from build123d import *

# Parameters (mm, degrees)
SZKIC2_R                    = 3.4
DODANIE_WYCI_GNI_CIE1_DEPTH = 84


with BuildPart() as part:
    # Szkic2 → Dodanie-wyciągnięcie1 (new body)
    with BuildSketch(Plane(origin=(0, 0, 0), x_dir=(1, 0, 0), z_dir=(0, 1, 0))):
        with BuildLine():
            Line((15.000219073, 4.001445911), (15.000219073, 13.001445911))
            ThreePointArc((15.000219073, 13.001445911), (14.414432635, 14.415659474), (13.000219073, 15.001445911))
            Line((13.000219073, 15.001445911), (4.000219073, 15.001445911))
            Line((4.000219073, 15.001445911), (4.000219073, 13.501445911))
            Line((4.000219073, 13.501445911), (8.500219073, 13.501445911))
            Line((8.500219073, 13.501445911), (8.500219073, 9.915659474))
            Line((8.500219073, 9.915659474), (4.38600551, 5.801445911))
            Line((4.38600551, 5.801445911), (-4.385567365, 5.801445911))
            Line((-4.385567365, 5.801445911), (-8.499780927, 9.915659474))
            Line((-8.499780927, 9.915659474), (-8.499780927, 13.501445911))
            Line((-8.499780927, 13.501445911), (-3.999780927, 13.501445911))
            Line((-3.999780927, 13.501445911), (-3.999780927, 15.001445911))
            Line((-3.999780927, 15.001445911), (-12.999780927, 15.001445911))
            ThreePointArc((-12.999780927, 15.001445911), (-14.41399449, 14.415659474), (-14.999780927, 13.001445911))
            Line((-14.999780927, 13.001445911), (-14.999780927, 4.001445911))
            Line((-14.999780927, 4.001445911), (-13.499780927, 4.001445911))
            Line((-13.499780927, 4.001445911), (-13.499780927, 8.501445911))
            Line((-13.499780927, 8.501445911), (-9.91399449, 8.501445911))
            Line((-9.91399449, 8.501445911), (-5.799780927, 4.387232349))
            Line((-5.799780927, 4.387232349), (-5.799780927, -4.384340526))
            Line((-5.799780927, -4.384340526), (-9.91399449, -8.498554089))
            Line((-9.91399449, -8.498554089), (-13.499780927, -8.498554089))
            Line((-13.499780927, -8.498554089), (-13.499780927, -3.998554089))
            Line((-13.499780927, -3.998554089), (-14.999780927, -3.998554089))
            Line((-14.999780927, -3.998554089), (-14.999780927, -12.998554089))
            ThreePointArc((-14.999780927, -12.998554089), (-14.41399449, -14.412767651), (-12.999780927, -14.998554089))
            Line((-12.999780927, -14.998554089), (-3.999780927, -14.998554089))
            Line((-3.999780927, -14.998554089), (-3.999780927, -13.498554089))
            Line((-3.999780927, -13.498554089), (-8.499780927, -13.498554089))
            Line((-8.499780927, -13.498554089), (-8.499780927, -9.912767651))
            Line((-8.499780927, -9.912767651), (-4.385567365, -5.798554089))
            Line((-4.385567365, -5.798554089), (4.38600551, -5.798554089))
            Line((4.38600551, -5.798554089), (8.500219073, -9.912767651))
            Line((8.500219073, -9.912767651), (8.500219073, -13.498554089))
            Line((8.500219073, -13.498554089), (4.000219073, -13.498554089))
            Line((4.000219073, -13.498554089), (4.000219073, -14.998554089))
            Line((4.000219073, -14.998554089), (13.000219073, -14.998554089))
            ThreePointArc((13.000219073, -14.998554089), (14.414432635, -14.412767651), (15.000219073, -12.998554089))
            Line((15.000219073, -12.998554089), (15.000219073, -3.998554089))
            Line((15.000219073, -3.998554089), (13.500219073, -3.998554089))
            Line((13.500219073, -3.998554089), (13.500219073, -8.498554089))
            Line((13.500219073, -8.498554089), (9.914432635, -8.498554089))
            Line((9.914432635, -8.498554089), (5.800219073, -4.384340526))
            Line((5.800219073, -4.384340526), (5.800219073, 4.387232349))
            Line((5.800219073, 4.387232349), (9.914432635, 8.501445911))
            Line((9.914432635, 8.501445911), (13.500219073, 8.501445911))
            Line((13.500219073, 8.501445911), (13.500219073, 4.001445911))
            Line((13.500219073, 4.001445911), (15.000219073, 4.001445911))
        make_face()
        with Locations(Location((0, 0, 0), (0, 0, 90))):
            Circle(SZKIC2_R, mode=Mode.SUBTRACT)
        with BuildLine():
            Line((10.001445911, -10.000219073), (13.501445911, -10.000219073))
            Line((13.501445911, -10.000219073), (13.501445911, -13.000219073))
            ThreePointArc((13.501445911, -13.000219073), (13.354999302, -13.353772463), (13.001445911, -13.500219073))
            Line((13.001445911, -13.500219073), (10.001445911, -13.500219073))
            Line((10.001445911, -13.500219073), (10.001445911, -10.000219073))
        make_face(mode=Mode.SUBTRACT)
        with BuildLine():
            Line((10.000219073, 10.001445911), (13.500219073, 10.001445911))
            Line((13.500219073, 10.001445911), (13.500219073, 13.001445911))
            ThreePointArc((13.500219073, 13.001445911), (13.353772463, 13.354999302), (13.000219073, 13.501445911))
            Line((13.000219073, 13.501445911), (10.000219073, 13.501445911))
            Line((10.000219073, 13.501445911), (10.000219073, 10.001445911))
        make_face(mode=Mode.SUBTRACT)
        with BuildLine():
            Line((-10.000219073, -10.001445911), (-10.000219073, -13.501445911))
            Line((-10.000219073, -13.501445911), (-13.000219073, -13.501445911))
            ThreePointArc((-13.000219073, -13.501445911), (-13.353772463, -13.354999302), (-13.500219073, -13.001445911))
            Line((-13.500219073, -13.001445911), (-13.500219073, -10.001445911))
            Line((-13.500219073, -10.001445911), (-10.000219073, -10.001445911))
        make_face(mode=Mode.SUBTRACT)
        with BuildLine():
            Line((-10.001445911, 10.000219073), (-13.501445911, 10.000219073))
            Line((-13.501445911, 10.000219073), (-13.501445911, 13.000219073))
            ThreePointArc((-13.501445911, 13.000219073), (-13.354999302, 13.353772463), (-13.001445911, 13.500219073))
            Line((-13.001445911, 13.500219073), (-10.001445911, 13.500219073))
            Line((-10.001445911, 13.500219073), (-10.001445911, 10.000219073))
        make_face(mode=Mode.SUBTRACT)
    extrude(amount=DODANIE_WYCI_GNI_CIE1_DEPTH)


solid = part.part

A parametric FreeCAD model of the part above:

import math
import FreeCAD as App
import Part
import Sketcher
from FreeCAD import Vector

doc = App.newDocument("Part")
body = doc.addObject("PartDesign::Body", "Body")

sketch1 = body.newObject("Sketcher::SketchObject", "Sketch")
sketch1.AttachmentSupport = (doc.getObject("XZ_Plane"), [""])
sketch1.MapMode = "FlatFace"
sketch1.addGeometry([
    Part.LineSegment(Vector(15, -4, 0), Vector(15, -13, 0)),
    Part.ArcOfCircle(Part.Circle(Vector(13, -13, 0), Vector(0, 0, 1), 2), math.radians(-90), math.radians(0)),
    Part.LineSegment(Vector(13, -15, 0), Vector(4, -15, 0)),
    Part.LineSegment(Vector(4, -15, 0), Vector(4, -13.5, 0)),
    Part.LineSegment(Vector(4, -13.5, 0), Vector(8.5, -13.5, 0)),
    Part.LineSegment(Vector(8.5, -13.5, 0), Vector(8.5, -9.9, 0)),
    Part.LineSegment(Vector(8.5, -9.9, 0), Vector(4.4, -5.8, 0)),
    Part.LineSegment(Vector(4.4, -5.8, 0), Vector(-4.4, -5.8, 0)),
    Part.LineSegment(Vector(-4.4, -5.8, 0), Vector(-8.5, -9.9, 0)),
    Part.LineSegment(Vector(-8.5, -9.9, 0), Vector(-8.5, -13.5, 0)),
    Part.LineSegment(Vector(-8.5, -13.5, 0), Vector(-4, -13.5, 0)),
    Part.LineSegment(Vector(-4, -13.5, 0), Vector(-4, -15, 0)),
    Part.LineSegment(Vector(-4, -15, 0), Vector(-13, -15, 0)),
    Part.ArcOfCircle(Part.Circle(Vector(-13, -13, 0), Vector(0, 0, 1), 2), math.radians(180), math.radians(270)),
    Part.LineSegment(Vector(-15, -13, 0), Vector(-15, -4, 0)),
    Part.LineSegment(Vector(-15, -4, 0), Vector(-13.5, -4, 0)),
    Part.LineSegment(Vector(-13.5, -4, 0), Vector(-13.5, -8.5, 0)),
    Part.LineSegment(Vector(-13.5, -8.5, 0), Vector(-9.9, -8.5, 0)),
    Part.LineSegment(Vector(-9.9, -8.5, 0), Vector(-5.8, -4.4, 0)),
    Part.LineSegment(Vector(-5.8, -4.4, 0), Vector(-5.8, 4.4, 0)),
    Part.LineSegment(Vector(-5.8, 4.4, 0), Vector(-9.9, 8.5, 0)),
    Part.LineSegment(Vector(-9.9, 8.5, 0), Vector(-13.5, 8.5, 0)),
    Part.LineSegment(Vector(-13.5, 8.5, 0), Vector(-13.5, 4, 0)),
    Part.LineSegment(Vector(-13.5, 4, 0), Vector(-15, 4, 0)),
    Part.LineSegment(Vector(-15, 4, 0), Vector(-15, 13, 0)),
    Part.ArcOfCircle(Part.Circle(Vector(-13, 13, 0), Vector(0, 0, 1), 2), math.radians(90), math.radians(180)),
    Part.LineSegment(Vector(-13, 15, 0), Vector(-4, 15, 0)),
    Part.LineSegment(Vector(-4, 15, 0), Vector(-4, 13.5, 0)),
    Part.LineSegment(Vector(-4, 13.5, 0), Vector(-8.5, 13.5, 0)),
    Part.LineSegment(Vector(-8.5, 13.5, 0), Vector(-8.5, 9.9, 0)),
    Part.LineSegment(Vector(-8.5, 9.9, 0), Vector(-4.4, 5.8, 0)),
    Part.LineSegment(Vector(-4.4, 5.8, 0), Vector(4.4, 5.8, 0)),
    Part.LineSegment(Vector(4.4, 5.8, 0), Vector(8.5, 9.9, 0)),
    Part.LineSegment(Vector(8.5, 9.9, 0), Vector(8.5, 13.5, 0)),
    Part.LineSegment(Vector(8.5, 13.5, 0), Vector(4, 13.5, 0)),
    Part.LineSegment(Vector(4, 13.5, 0), Vector(4, 15, 0)),
    Part.LineSegment(Vector(4, 15, 0), Vector(13, 15, 0)),
    Part.ArcOfCircle(Part.Circle(Vector(13, 13, 0), Vector(0, 0, 1), 2), math.radians(0), math.radians(90)),
    Part.LineSegment(Vector(15, 13, 0), Vector(15, 4, 0)),
    Part.LineSegment(Vector(15, 4, 0), Vector(13.5, 4, 0)),
    Part.LineSegment(Vector(13.5, 4, 0), Vector(13.5, 8.5, 0)),
    Part.LineSegment(Vector(13.5, 8.5, 0), Vector(9.9, 8.5, 0)),
    Part.LineSegment(Vector(9.9, 8.5, 0), Vector(5.8, 4.4, 0)),
    Part.LineSegment(Vector(5.8, 4.4, 0), Vector(5.8, -4.4, 0)),
    Part.LineSegment(Vector(5.8, -4.4, 0), Vector(9.9, -8.5, 0)),
    Part.LineSegment(Vector(9.9, -8.5, 0), Vector(13.5, -8.5, 0)),
    Part.LineSegment(Vector(13.5, -8.5, 0), Vector(13.5, -4, 0)),
    Part.LineSegment(Vector(13.5, -4, 0), Vector(15, -4, 0)),
    Part.LineSegment(Vector(-13.5, 10, 0), Vector(-10, 10, 0)),
    Part.LineSegment(Vector(-10, 10, 0), Vector(-10, 13.5, 0)),
    Part.LineSegment(Vector(-10, 13.5, 0), Vector(-13, 13.5, 0)),
    Part.ArcOfCircle(Part.Circle(Vector(-13, 13, 0), Vector(0, 0, 1), 0.5), math.radians(90), math.radians(180)),
    Part.LineSegment(Vector(-13.5, 13, 0), Vector(-13.5, 10, 0)),
    Part.Circle(Vector(0, 0, 0), Vector(0, 0, 1), 3.4),
    Part.LineSegment(Vector(10, 13.5, 0), Vector(10, 10, 0)),
    Part.LineSegment(Vector(10, 10, 0), Vector(13.5, 10, 0)),
    Part.LineSegment(Vector(13.5, 10, 0), Vector(13.5, 13, 0)),
    Part.ArcOfCircle(Part.Circle(Vector(13, 13, 0), Vector(0, 0, 1), 0.5), math.radians(0), math.radians(90)),
    Part.LineSegment(Vector(13, 13.5, 0), Vector(10, 13.5, 0)),
    Part.LineSegment(Vector(-10, -13.5, 0), Vector(-10, -10, 0)),
    Part.LineSegment(Vector(-10, -10, 0), Vector(-13.5, -10, 0)),
    Part.LineSegment(Vector(-13.5, -10, 0), Vector(-13.5, -13, 0)),
    Part.ArcOfCircle(Part.Circle(Vector(-13, -13, 0), Vector(0, 0, 1), 0.5), math.radians(180), math.radians(270)),
    Part.LineSegment(Vector(-13, -13.5, 0), Vector(-10, -13.5, 0)),
    Part.LineSegment(Vector(13.5, -10, 0), Vector(10, -10, 0)),
    Part.LineSegment(Vector(10, -10, 0), Vector(10, -13.5, 0)),
    Part.LineSegment(Vector(10, -13.5, 0), Vector(13, -13.5, 0)),
    Part.ArcOfCircle(Part.Circle(Vector(13, -13, 0), Vector(0, 0, 1), 0.5), math.radians(-90), math.radians(0)),
    Part.LineSegment(Vector(13.5, -13, 0), Vector(13.5, -10, 0)),
], False)
sketch1.addConstraint([
    Sketcher.Constraint("Tangent", 0, 2, 1, 2),
    Sketcher.Constraint("Tangent", 1, 1, 2, 1),
    Sketcher.Constraint("Coincident", 2, 2, 3, 1),
    Sketcher.Constraint("Coincident", 3, 2, 4, 1),
    Sketcher.Constraint("Coincident", 4, 2, 5, 1),
    Sketcher.Constraint("Coincident", 5, 2, 6, 1),
    Sketcher.Constraint("Coincident", 6, 2, 7, 1),
    Sketcher.Constraint("Coincident", 7, 2, 8, 1),
    Sketcher.Constraint("Coincident", 8, 2, 9, 1),
    Sketcher.Constraint("Coincident", 9, 2, 10, 1),
    Sketcher.Constraint("Coincident", 10, 2, 11, 1),
    Sketcher.Constraint("Coincident", 11, 2, 12, 1),
    Sketcher.Constraint("Tangent", 12, 2, 13, 2),
    Sketcher.Constraint("Tangent", 13, 1, 14, 1),
    Sketcher.Constraint("Coincident", 14, 2, 15, 1),
    Sketcher.Constraint("Coincident", 15, 2, 16, 1),
    Sketcher.Constraint("Coincident", 16, 2, 17, 1),
    Sketcher.Constraint("Coincident", 17, 2, 18, 1),
    Sketcher.Constraint("Coincident", 18, 2, 19, 1),
    Sketcher.Constraint("Coincident", 19, 2, 20, 1),
    Sketcher.Constraint("Coincident", 20, 2, 21, 1),
    Sketcher.Constraint("Coincident", 21, 2, 22, 1),
    Sketcher.Constraint("Coincident", 22, 2, 23, 1),
    Sketcher.Constraint("Coincident", 23, 2, 24, 1),
    Sketcher.Constraint("Tangent", 24, 2, 25, 2),
    Sketcher.Constraint("Tangent", 25, 1, 26, 1),
    Sketcher.Constraint("Coincident", 26, 2, 27, 1),
    Sketcher.Constraint("Coincident", 27, 2, 28, 1),
    Sketcher.Constraint("Coincident", 28, 2, 29, 1),
    Sketcher.Constraint("Coincident", 29, 2, 30, 1),
    Sketcher.Constraint("Coincident", 30, 2, 31, 1),
    Sketcher.Constraint("Coincident", 31, 2, 32, 1),
    Sketcher.Constraint("Coincident", 32, 2, 33, 1),
    Sketcher.Constraint("Coincident", 33, 2, 34, 1),
    Sketcher.Constraint("Coincident", 34, 2, 35, 1),
    Sketcher.Constraint("Coincident", 35, 2, 36, 1),
    Sketcher.Constraint("Tangent", 36, 2, 37, 2),
    Sketcher.Constraint("Tangent", 37, 1, 38, 1),
    Sketcher.Constraint("Coincident", 38, 2, 39, 1),
    Sketcher.Constraint("Coincident", 39, 2, 40, 1),
    Sketcher.Constraint("Coincident", 40, 2, 41, 1),
    Sketcher.Constraint("Coincident", 41, 2, 42, 1),
    Sketcher.Constraint("Coincident", 42, 2, 43, 1),
    Sketcher.Constraint("Coincident", 43, 2, 44, 1),
    Sketcher.Constraint("Coincident", 44, 2, 45, 1),
    Sketcher.Constraint("Coincident", 45, 2, 46, 1),
    Sketcher.Constraint("Coincident", 46, 2, 47, 1),
    Sketcher.Constraint("Coincident", 47, 2, 0, 1),
    Sketcher.Constraint("Coincident", 48, 2, 49, 1),
    Sketcher.Constraint("Coincident", 49, 2, 50, 1),
    Sketcher.Constraint("Tangent", 50, 2, 51, 1),
    Sketcher.Constraint("Tangent", 51, 2, 52, 1),
    Sketcher.Constraint("Coincident", 52, 2, 48, 1),
    Sketcher.Constraint("Coincident", 54, 2, 55, 1),
    Sketcher.Constraint("Coincident", 55, 2, 56, 1),
    Sketcher.Constraint("Tangent", 56, 2, 57, 1),
    Sketcher.Constraint("Tangent", 57, 2, 58, 1),
    Sketcher.Constraint("Coincident", 58, 2, 54, 1),
    Sketcher.Constraint("Coincident", 59, 2, 60, 1),
    Sketcher.Constraint("Coincident", 60, 2, 61, 1),
    Sketcher.Constraint("Tangent", 61, 2, 62, 1),
    Sketcher.Constraint("Tangent", 62, 2, 63, 1),
    Sketcher.Constraint("Coincident", 63, 2, 59, 1),
    Sketcher.Constraint("Coincident", 64, 2, 65, 1),
    Sketcher.Constraint("Coincident", 65, 2, 66, 1),
    Sketcher.Constraint("Tangent", 66, 2, 67, 1),
    Sketcher.Constraint("Tangent", 67, 2, 68, 1),
    Sketcher.Constraint("Coincident", 68, 2, 64, 1),
    Sketcher.Constraint("Vertical", 0),
    Sketcher.Constraint("Horizontal", 2),
    Sketcher.Constraint("Vertical", 3),
    Sketcher.Constraint("Horizontal", 4),
    Sketcher.Constraint("Vertical", 5),
    Sketcher.Constraint("Horizontal", 7),
    Sketcher.Constraint("Vertical", 9),
    Sketcher.Constraint("Horizontal", 10),
    Sketcher.Constraint("Vertical", 11),
    Sketcher.Constraint("Horizontal", 12),
    Sketcher.Constraint("Vertical", 14),
    Sketcher.Constraint("Horizontal", 15),
    Sketcher.Constraint("Vertical", 16),
    Sketcher.Constraint("Horizontal", 17),
    Sketcher.Constraint("Vertical", 19),
    Sketcher.Constraint("Horizontal", 21),
    Sketcher.Constraint("Vertical", 22),
    Sketcher.Constraint("Horizontal", 23),
    Sketcher.Constraint("Vertical", 24),
    Sketcher.Constraint("Horizontal", 26),
    Sketcher.Constraint("Vertical", 27),
    Sketcher.Constraint("Horizontal", 28),
    Sketcher.Constraint("Vertical", 29),
    Sketcher.Constraint("Horizontal", 31),
    Sketcher.Constraint("Vertical", 33),
    Sketcher.Constraint("Horizontal", 34),
    Sketcher.Constraint("Vertical", 35),
    Sketcher.Constraint("Horizontal", 36),
    Sketcher.Constraint("Vertical", 38),
    Sketcher.Constraint("Horizontal", 39),
    Sketcher.Constraint("Vertical", 40),
    Sketcher.Constraint("Horizontal", 41),
    Sketcher.Constraint("Vertical", 43),
    Sketcher.Constraint("Horizontal", 45),
    Sketcher.Constraint("Vertical", 46),
    Sketcher.Constraint("Horizontal", 47),
    Sketcher.Constraint("Horizontal", 48),
    Sketcher.Constraint("Vertical", 49),
    Sketcher.Constraint("Horizontal", 50),
    Sketcher.Constraint("Vertical", 52),
    Sketcher.Constraint("Vertical", 54),
    Sketcher.Constraint("Horizontal", 55),
    Sketcher.Constraint("Vertical", 56),
    Sketcher.Constraint("Horizontal", 58),
    Sketcher.Constraint("Vertical", 59),
    Sketcher.Constraint("Horizontal", 60),
    Sketcher.Constraint("Vertical", 61),
    Sketcher.Constraint("Horizontal", 63),
    Sketcher.Constraint("Horizontal", 64),
    Sketcher.Constraint("Vertical", 65),
    Sketcher.Constraint("Horizontal", 66),
    Sketcher.Constraint("Vertical", 68),
    Sketcher.Constraint("Coincident", 53, 3, -1, 1),
    Sketcher.Constraint("Coincident", 67, 3, 1, 3),
    Sketcher.Constraint("Equal", 1, 13),
    Sketcher.Constraint("Equal", 13, 25),
    Sketcher.Constraint("Equal", 25, 37),
    Sketcher.Constraint("Equal", 51, 57),
    Sketcher.Constraint("Equal", 57, 62),
    Sketcher.Constraint("Equal", 62, 67),
    Sketcher.Constraint("Symmetric", 1, 3, 51, 3, -1, 1),
    Sketcher.Constraint("Symmetric", 57, 3, 62, 3, -1, 1),
    Sketcher.Constraint("Symmetric", 54, 2, 59, 2, -1, 1),
    Sketcher.Constraint("Symmetric", 48, 2, 64, 2, -1, 1),
    Sketcher.Constraint("Perpendicular", 6, 8),
    Sketcher.Constraint("Parallel", 8, 18),
    Sketcher.Constraint("Perpendicular", 18, 20),
    Sketcher.Constraint("Parallel", 20, 30),
    Sketcher.Constraint("Perpendicular", 30, 32),
    Sketcher.Constraint("Parallel", 32, 42),
    Sketcher.Constraint("Perpendicular", 42, 44),
    Sketcher.Constraint("Horizontal", 1, 3, 13, 3),
    Sketcher.Constraint("Horizontal", 25, 3, 37, 3),
    Sketcher.Constraint("Horizontal", 5, 2, 8, 2),
    Sketcher.Constraint("Horizontal", 4, 2, 9, 2),
    Sketcher.Constraint("Horizontal", 29, 2, 32, 2),
    Sketcher.Constraint("Horizontal", 28, 2, 33, 2),
    Sketcher.Constraint("Horizontal", 23, 2, 38, 2),
    Sketcher.Constraint("Horizontal", 21, 2, 40, 2),
    Sketcher.Constraint("Horizontal", 19, 2, 42, 2),
    Sketcher.Constraint("Horizontal", 18, 2, 43, 2),
    Sketcher.Constraint("Horizontal", 17, 2, 44, 2),
    Sketcher.Constraint("Horizontal", 15, 2, 46, 2),
    Sketcher.Constraint("Horizontal", 10, 2, 65, 2),
    Sketcher.Constraint("Vertical", 13, 3, 25, 3),
    Sketcher.Constraint("Vertical", 1, 3, 37, 3),
    Sketcher.Constraint("Vertical", 17, 2, 20, 2),
    Sketcher.Constraint("Vertical", 16, 2, 21, 2),
    Sketcher.Constraint("Vertical", 11, 2, 26, 2),
    Sketcher.Constraint("Vertical", 9, 2, 28, 2),
    Sketcher.Constraint("Vertical", 7, 2, 30, 2),
    Sketcher.Constraint("Vertical", 6, 2, 31, 2),
    Sketcher.Constraint("Vertical", 5, 2, 32, 2),
    Sketcher.Constraint("Vertical", 3, 2, 34, 2),
    Sketcher.Constraint("Vertical", 40, 2, 45, 2),
    Sketcher.Constraint("Vertical", 46, 2, 67, 2),
    Sketcher.Constraint("Equal", 4, 10),
    Sketcher.Constraint("Equal", 2, 12),
    Sketcher.Constraint("Equal", 23, 39),
    Sketcher.Constraint("Equal", 21, 41),
    Sketcher.Constraint("Equal", 48, 55),
    Sketcher.Constraint("Equal", 36, 0),
    Sketcher.Constraint("Equal", 45, 5),
    Sketcher.Constraint("Equal", 34, 16),
    Sketcher.Constraint("Equal", 31, 19),
    Sketcher.Constraint("Equal", 16, 22),
    Sketcher.Constraint("Equal", 14, 24),
    Sketcher.Constraint("Equal", 11, 27),
    Sketcher.Constraint("Equal", 9, 29),
    Sketcher.Constraint("Equal", 64, 49),
    Sketcher.Constraint("Equal", 49, 54),
    Sketcher.Constraint("Equal", 8, 18),
    Sketcher.Constraint("Radius", 1, 2.0),
    Sketcher.Constraint("Diameter", 53, 6.8),
    Sketcher.Constraint("Radius", 51, 0.5),
    Sketcher.Constraint("DistanceX", 2, 2, 2, 1, 9.0),
    Sketcher.Constraint("DistanceX", 50, 2, 50, 1, 3.0),
    Sketcher.Constraint("DistanceX", 4, 1, 4, 2, 4.5),
    Sketcher.Constraint("DistanceX", 7, 2, 7, 1, 8.771573),
    Sketcher.Constraint("DistanceX", 17, 1, 17, 2, 3.585786),
    Sketcher.Constraint("DistanceX", -1, 1, 1, 3, 13.000219),
    Sketcher.Constraint("DistanceX", 13, 3, -1, 1, 12.999781),
    Sketcher.Constraint("DistanceY", -1, 1, 57, 3, 13.000219),
    Sketcher.Constraint("DistanceY", 5, 2, -1, 1, 9.915659),
    Sketcher.Constraint("DistanceX", -1, 1, 57, 3, 13.001446),
])
pad1 = body.newObject("PartDesign::Pad", "Pad")
pad1.Profile = sketch1
pad1.Length = 84
pad1.Reversed = True

doc.recompute()
